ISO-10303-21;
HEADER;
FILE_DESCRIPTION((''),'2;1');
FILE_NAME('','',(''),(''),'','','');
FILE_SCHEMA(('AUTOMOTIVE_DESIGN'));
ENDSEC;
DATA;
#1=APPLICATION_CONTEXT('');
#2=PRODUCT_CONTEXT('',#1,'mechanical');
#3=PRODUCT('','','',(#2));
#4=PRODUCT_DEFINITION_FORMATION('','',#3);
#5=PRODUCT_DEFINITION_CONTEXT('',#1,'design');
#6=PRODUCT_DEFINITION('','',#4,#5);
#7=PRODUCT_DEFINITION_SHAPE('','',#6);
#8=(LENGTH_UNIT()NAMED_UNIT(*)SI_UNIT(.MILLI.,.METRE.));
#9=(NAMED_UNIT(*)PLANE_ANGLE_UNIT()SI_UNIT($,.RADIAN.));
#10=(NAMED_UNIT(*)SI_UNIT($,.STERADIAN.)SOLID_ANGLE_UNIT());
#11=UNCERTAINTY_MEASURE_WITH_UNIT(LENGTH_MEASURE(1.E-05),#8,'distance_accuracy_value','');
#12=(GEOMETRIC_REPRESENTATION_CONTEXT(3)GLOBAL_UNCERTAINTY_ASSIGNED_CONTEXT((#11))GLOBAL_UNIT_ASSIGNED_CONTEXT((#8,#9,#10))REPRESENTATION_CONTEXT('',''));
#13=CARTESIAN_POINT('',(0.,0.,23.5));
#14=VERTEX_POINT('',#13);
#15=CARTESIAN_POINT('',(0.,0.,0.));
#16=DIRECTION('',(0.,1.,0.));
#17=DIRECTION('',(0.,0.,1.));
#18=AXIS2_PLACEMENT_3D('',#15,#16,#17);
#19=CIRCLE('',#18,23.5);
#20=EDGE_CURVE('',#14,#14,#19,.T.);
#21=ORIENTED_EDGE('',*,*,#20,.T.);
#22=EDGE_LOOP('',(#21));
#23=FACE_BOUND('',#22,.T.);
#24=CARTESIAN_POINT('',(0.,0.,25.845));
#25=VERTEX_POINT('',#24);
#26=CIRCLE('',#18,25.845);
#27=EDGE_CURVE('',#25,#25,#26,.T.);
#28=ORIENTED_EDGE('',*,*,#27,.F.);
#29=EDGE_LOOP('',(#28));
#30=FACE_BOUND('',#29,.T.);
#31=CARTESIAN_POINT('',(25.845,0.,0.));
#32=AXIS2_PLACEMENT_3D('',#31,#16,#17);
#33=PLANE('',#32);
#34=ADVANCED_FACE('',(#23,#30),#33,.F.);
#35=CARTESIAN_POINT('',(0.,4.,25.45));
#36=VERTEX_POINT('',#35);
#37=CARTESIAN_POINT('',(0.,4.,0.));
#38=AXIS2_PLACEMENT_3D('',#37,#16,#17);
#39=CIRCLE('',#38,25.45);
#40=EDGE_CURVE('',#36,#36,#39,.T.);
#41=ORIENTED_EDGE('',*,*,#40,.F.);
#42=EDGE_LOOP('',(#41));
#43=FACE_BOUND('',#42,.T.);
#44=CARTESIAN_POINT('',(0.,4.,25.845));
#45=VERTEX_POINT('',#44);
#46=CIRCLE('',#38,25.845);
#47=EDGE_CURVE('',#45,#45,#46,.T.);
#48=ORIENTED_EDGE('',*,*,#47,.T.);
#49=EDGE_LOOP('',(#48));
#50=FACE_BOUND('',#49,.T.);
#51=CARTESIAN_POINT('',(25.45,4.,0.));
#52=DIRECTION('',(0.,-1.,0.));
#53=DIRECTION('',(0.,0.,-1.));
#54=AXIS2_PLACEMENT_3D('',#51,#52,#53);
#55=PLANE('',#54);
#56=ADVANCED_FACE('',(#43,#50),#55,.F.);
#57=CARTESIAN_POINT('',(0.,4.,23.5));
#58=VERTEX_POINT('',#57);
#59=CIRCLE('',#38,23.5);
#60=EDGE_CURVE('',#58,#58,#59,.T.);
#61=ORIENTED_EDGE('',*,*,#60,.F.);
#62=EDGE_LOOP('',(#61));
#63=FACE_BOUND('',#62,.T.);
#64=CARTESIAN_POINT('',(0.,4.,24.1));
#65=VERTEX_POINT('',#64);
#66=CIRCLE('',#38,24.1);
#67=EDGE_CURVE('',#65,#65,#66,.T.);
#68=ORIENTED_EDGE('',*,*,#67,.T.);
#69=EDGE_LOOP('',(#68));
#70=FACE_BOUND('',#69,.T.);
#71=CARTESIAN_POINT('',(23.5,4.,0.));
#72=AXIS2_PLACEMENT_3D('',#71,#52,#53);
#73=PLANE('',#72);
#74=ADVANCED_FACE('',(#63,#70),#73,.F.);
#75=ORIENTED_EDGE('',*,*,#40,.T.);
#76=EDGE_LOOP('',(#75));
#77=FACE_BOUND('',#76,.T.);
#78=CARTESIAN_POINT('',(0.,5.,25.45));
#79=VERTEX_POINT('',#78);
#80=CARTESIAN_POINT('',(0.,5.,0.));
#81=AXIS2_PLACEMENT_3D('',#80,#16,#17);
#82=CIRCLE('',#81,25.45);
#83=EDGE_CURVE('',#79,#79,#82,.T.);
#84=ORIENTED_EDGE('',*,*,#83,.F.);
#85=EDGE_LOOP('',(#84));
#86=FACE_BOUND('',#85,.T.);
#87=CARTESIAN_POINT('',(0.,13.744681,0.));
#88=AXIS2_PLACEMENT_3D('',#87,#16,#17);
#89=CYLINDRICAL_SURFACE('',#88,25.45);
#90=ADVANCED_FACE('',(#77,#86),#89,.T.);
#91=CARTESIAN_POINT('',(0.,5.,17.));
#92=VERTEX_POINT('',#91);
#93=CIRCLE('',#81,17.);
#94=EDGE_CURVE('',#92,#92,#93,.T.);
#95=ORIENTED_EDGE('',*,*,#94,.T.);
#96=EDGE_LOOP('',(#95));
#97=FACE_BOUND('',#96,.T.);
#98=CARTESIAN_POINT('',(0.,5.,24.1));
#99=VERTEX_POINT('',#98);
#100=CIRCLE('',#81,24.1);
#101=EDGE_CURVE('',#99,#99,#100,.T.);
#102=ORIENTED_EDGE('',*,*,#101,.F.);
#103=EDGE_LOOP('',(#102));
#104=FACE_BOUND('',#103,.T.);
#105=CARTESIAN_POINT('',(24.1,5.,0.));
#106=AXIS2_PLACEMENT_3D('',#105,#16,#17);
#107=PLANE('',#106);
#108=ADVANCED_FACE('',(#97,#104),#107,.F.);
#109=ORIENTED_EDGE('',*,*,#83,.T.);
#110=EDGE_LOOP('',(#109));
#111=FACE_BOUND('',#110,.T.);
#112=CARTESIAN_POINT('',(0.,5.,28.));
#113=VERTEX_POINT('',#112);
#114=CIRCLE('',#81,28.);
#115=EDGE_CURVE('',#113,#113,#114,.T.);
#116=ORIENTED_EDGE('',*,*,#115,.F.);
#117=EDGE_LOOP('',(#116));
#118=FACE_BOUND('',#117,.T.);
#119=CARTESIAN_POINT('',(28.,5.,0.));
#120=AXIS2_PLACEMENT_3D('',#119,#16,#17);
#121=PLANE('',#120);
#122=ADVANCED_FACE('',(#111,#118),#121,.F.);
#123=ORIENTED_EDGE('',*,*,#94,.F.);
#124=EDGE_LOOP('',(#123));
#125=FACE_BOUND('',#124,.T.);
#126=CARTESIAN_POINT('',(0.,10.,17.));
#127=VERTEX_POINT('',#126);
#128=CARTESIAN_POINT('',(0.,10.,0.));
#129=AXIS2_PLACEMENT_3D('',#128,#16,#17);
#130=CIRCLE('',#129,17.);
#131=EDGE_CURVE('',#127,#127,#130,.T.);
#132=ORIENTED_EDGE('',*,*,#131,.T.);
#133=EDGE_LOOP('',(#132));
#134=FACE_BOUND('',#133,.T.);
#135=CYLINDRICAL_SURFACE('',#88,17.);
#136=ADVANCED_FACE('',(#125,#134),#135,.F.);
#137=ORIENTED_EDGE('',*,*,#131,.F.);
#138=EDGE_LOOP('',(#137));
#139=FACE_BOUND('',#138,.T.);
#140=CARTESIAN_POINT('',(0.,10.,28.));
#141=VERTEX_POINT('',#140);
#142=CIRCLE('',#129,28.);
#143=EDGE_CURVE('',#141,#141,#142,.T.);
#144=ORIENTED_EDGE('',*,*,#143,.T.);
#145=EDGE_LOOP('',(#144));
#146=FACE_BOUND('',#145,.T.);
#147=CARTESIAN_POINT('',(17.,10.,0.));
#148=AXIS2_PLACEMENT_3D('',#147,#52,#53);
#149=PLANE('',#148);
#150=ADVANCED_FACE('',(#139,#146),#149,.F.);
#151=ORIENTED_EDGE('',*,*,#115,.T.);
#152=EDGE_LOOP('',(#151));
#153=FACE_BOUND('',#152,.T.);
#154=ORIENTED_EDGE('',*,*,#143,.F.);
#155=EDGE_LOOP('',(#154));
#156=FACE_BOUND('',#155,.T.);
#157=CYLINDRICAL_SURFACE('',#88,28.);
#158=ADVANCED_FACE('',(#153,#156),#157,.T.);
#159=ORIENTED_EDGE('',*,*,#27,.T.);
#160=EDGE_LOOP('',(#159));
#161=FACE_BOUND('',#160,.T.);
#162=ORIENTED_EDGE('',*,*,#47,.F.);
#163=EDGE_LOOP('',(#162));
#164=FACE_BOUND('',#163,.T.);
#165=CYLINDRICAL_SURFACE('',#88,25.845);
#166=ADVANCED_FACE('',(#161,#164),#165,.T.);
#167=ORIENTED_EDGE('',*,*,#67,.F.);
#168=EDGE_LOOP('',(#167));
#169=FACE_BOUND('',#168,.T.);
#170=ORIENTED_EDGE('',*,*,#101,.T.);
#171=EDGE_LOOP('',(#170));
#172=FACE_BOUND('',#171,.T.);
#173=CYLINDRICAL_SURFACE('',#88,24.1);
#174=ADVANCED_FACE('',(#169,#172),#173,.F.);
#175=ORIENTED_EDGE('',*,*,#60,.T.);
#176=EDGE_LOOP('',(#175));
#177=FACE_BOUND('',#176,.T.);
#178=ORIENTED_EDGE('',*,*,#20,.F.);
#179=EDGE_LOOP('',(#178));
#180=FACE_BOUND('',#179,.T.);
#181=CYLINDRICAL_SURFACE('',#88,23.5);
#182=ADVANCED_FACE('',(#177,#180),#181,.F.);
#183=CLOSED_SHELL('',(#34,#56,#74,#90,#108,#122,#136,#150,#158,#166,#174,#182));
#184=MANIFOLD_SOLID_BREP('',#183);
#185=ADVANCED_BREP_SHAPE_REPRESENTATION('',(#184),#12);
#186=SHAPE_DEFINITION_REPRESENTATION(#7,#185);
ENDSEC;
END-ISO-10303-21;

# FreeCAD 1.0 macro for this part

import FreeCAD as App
import Part
import Sketcher

V = App.Vector
Q = App.Units.Quantity


def add_polygon(sketch, points):
    """Adds a closed chain of lines whose ends are joined by coincident constraints."""
    first, n = sketch.GeometryCount, len(points)
    for a, b in zip(points, points[1:] + points[:1]):
        sketch.addGeometry(Part.LineSegment(App.Vector(*a, 0), App.Vector(*b, 0)), False)
    for i in range(n):
        sketch.addConstraint(Sketcher.Constraint("Coincident", first + i, 2, first + (i + 1) % n, 1))

doc = App.newDocument("Part")
body = doc.addObject("PartDesign::Body", "Body")

sketch1 = doc.addObject("Sketcher::SketchObject", "Sketch")
body.addObject(sketch1)
sketch1.AttachmentSupport = (doc.XY_Plane, [""])
sketch1.MapMode = "FlatFace"
add_polygon(sketch1, [(23.5, 0), (25.845, 0), (25.845, 4), (25.45, 4), (25.45, 5), (28, 5), (28, 10), (17, 10), (17, 5), (24.1, 5), (24.1, 4), (23.5, 4)])
sketch1.addConstraint([
    Sketcher.Constraint("Horizontal", 0),
    Sketcher.Constraint("Vertical", 1),
    Sketcher.Constraint("Horizontal", 2),
    Sketcher.Constraint("Vertical", 3),
    Sketcher.Constraint("Horizontal", 4),
    Sketcher.Constraint("Vertical", 5),
    Sketcher.Constraint("Horizontal", 6),
    Sketcher.Constraint("Vertical", 7),
    Sketcher.Constraint("Horizontal", 8),
    Sketcher.Constraint("Vertical", 9),
    Sketcher.Constraint("Horizontal", 10),
    Sketcher.Constraint("Vertical", 11),
    Sketcher.Constraint("PointOnObject", 0, 2, -1),
    Sketcher.Constraint("Horizontal", 4, 2, 7, 2),
    Sketcher.Constraint("Horizontal", 2, 2, 9, 2),
    Sketcher.Constraint("DistanceX", 6, 2, 6, 1, Q("11 mm")),
    Sketcher.Constraint("DistanceY", 1, 1, 1, 2, Q("4 mm")),
    Sketcher.Constraint("DistanceY", 3, 1, 3, 2, Q("1 mm")),
    Sketcher.Constraint("DistanceY", 5, 1, 5, 2, Q("5 mm")),
    Sketcher.Constraint("DistanceX", 8, 1, 8, 2, Q("7.1 mm")),
    Sketcher.Constraint("DistanceX", 10, 2, 10, 1, Q("0.6 mm")),
    Sketcher.Constraint("DistanceX", -1, 1, 4, 2, Q("28 mm")),
    Sketcher.Constraint("DistanceX", 4, 1, 4, 2, Q("2.55 mm")),
    Sketcher.Constraint("DistanceX", 0, 1, 0, 2, Q("2.345 mm")),
])
revolution = doc.addObject("PartDesign::Revolution", "Revolution")
body.addObject(revolution)
revolution.Profile = sketch1
revolution.ReferenceAxis = (sketch1, ["V_Axis"])
revolution.Angle = 360

doc.recompute()
